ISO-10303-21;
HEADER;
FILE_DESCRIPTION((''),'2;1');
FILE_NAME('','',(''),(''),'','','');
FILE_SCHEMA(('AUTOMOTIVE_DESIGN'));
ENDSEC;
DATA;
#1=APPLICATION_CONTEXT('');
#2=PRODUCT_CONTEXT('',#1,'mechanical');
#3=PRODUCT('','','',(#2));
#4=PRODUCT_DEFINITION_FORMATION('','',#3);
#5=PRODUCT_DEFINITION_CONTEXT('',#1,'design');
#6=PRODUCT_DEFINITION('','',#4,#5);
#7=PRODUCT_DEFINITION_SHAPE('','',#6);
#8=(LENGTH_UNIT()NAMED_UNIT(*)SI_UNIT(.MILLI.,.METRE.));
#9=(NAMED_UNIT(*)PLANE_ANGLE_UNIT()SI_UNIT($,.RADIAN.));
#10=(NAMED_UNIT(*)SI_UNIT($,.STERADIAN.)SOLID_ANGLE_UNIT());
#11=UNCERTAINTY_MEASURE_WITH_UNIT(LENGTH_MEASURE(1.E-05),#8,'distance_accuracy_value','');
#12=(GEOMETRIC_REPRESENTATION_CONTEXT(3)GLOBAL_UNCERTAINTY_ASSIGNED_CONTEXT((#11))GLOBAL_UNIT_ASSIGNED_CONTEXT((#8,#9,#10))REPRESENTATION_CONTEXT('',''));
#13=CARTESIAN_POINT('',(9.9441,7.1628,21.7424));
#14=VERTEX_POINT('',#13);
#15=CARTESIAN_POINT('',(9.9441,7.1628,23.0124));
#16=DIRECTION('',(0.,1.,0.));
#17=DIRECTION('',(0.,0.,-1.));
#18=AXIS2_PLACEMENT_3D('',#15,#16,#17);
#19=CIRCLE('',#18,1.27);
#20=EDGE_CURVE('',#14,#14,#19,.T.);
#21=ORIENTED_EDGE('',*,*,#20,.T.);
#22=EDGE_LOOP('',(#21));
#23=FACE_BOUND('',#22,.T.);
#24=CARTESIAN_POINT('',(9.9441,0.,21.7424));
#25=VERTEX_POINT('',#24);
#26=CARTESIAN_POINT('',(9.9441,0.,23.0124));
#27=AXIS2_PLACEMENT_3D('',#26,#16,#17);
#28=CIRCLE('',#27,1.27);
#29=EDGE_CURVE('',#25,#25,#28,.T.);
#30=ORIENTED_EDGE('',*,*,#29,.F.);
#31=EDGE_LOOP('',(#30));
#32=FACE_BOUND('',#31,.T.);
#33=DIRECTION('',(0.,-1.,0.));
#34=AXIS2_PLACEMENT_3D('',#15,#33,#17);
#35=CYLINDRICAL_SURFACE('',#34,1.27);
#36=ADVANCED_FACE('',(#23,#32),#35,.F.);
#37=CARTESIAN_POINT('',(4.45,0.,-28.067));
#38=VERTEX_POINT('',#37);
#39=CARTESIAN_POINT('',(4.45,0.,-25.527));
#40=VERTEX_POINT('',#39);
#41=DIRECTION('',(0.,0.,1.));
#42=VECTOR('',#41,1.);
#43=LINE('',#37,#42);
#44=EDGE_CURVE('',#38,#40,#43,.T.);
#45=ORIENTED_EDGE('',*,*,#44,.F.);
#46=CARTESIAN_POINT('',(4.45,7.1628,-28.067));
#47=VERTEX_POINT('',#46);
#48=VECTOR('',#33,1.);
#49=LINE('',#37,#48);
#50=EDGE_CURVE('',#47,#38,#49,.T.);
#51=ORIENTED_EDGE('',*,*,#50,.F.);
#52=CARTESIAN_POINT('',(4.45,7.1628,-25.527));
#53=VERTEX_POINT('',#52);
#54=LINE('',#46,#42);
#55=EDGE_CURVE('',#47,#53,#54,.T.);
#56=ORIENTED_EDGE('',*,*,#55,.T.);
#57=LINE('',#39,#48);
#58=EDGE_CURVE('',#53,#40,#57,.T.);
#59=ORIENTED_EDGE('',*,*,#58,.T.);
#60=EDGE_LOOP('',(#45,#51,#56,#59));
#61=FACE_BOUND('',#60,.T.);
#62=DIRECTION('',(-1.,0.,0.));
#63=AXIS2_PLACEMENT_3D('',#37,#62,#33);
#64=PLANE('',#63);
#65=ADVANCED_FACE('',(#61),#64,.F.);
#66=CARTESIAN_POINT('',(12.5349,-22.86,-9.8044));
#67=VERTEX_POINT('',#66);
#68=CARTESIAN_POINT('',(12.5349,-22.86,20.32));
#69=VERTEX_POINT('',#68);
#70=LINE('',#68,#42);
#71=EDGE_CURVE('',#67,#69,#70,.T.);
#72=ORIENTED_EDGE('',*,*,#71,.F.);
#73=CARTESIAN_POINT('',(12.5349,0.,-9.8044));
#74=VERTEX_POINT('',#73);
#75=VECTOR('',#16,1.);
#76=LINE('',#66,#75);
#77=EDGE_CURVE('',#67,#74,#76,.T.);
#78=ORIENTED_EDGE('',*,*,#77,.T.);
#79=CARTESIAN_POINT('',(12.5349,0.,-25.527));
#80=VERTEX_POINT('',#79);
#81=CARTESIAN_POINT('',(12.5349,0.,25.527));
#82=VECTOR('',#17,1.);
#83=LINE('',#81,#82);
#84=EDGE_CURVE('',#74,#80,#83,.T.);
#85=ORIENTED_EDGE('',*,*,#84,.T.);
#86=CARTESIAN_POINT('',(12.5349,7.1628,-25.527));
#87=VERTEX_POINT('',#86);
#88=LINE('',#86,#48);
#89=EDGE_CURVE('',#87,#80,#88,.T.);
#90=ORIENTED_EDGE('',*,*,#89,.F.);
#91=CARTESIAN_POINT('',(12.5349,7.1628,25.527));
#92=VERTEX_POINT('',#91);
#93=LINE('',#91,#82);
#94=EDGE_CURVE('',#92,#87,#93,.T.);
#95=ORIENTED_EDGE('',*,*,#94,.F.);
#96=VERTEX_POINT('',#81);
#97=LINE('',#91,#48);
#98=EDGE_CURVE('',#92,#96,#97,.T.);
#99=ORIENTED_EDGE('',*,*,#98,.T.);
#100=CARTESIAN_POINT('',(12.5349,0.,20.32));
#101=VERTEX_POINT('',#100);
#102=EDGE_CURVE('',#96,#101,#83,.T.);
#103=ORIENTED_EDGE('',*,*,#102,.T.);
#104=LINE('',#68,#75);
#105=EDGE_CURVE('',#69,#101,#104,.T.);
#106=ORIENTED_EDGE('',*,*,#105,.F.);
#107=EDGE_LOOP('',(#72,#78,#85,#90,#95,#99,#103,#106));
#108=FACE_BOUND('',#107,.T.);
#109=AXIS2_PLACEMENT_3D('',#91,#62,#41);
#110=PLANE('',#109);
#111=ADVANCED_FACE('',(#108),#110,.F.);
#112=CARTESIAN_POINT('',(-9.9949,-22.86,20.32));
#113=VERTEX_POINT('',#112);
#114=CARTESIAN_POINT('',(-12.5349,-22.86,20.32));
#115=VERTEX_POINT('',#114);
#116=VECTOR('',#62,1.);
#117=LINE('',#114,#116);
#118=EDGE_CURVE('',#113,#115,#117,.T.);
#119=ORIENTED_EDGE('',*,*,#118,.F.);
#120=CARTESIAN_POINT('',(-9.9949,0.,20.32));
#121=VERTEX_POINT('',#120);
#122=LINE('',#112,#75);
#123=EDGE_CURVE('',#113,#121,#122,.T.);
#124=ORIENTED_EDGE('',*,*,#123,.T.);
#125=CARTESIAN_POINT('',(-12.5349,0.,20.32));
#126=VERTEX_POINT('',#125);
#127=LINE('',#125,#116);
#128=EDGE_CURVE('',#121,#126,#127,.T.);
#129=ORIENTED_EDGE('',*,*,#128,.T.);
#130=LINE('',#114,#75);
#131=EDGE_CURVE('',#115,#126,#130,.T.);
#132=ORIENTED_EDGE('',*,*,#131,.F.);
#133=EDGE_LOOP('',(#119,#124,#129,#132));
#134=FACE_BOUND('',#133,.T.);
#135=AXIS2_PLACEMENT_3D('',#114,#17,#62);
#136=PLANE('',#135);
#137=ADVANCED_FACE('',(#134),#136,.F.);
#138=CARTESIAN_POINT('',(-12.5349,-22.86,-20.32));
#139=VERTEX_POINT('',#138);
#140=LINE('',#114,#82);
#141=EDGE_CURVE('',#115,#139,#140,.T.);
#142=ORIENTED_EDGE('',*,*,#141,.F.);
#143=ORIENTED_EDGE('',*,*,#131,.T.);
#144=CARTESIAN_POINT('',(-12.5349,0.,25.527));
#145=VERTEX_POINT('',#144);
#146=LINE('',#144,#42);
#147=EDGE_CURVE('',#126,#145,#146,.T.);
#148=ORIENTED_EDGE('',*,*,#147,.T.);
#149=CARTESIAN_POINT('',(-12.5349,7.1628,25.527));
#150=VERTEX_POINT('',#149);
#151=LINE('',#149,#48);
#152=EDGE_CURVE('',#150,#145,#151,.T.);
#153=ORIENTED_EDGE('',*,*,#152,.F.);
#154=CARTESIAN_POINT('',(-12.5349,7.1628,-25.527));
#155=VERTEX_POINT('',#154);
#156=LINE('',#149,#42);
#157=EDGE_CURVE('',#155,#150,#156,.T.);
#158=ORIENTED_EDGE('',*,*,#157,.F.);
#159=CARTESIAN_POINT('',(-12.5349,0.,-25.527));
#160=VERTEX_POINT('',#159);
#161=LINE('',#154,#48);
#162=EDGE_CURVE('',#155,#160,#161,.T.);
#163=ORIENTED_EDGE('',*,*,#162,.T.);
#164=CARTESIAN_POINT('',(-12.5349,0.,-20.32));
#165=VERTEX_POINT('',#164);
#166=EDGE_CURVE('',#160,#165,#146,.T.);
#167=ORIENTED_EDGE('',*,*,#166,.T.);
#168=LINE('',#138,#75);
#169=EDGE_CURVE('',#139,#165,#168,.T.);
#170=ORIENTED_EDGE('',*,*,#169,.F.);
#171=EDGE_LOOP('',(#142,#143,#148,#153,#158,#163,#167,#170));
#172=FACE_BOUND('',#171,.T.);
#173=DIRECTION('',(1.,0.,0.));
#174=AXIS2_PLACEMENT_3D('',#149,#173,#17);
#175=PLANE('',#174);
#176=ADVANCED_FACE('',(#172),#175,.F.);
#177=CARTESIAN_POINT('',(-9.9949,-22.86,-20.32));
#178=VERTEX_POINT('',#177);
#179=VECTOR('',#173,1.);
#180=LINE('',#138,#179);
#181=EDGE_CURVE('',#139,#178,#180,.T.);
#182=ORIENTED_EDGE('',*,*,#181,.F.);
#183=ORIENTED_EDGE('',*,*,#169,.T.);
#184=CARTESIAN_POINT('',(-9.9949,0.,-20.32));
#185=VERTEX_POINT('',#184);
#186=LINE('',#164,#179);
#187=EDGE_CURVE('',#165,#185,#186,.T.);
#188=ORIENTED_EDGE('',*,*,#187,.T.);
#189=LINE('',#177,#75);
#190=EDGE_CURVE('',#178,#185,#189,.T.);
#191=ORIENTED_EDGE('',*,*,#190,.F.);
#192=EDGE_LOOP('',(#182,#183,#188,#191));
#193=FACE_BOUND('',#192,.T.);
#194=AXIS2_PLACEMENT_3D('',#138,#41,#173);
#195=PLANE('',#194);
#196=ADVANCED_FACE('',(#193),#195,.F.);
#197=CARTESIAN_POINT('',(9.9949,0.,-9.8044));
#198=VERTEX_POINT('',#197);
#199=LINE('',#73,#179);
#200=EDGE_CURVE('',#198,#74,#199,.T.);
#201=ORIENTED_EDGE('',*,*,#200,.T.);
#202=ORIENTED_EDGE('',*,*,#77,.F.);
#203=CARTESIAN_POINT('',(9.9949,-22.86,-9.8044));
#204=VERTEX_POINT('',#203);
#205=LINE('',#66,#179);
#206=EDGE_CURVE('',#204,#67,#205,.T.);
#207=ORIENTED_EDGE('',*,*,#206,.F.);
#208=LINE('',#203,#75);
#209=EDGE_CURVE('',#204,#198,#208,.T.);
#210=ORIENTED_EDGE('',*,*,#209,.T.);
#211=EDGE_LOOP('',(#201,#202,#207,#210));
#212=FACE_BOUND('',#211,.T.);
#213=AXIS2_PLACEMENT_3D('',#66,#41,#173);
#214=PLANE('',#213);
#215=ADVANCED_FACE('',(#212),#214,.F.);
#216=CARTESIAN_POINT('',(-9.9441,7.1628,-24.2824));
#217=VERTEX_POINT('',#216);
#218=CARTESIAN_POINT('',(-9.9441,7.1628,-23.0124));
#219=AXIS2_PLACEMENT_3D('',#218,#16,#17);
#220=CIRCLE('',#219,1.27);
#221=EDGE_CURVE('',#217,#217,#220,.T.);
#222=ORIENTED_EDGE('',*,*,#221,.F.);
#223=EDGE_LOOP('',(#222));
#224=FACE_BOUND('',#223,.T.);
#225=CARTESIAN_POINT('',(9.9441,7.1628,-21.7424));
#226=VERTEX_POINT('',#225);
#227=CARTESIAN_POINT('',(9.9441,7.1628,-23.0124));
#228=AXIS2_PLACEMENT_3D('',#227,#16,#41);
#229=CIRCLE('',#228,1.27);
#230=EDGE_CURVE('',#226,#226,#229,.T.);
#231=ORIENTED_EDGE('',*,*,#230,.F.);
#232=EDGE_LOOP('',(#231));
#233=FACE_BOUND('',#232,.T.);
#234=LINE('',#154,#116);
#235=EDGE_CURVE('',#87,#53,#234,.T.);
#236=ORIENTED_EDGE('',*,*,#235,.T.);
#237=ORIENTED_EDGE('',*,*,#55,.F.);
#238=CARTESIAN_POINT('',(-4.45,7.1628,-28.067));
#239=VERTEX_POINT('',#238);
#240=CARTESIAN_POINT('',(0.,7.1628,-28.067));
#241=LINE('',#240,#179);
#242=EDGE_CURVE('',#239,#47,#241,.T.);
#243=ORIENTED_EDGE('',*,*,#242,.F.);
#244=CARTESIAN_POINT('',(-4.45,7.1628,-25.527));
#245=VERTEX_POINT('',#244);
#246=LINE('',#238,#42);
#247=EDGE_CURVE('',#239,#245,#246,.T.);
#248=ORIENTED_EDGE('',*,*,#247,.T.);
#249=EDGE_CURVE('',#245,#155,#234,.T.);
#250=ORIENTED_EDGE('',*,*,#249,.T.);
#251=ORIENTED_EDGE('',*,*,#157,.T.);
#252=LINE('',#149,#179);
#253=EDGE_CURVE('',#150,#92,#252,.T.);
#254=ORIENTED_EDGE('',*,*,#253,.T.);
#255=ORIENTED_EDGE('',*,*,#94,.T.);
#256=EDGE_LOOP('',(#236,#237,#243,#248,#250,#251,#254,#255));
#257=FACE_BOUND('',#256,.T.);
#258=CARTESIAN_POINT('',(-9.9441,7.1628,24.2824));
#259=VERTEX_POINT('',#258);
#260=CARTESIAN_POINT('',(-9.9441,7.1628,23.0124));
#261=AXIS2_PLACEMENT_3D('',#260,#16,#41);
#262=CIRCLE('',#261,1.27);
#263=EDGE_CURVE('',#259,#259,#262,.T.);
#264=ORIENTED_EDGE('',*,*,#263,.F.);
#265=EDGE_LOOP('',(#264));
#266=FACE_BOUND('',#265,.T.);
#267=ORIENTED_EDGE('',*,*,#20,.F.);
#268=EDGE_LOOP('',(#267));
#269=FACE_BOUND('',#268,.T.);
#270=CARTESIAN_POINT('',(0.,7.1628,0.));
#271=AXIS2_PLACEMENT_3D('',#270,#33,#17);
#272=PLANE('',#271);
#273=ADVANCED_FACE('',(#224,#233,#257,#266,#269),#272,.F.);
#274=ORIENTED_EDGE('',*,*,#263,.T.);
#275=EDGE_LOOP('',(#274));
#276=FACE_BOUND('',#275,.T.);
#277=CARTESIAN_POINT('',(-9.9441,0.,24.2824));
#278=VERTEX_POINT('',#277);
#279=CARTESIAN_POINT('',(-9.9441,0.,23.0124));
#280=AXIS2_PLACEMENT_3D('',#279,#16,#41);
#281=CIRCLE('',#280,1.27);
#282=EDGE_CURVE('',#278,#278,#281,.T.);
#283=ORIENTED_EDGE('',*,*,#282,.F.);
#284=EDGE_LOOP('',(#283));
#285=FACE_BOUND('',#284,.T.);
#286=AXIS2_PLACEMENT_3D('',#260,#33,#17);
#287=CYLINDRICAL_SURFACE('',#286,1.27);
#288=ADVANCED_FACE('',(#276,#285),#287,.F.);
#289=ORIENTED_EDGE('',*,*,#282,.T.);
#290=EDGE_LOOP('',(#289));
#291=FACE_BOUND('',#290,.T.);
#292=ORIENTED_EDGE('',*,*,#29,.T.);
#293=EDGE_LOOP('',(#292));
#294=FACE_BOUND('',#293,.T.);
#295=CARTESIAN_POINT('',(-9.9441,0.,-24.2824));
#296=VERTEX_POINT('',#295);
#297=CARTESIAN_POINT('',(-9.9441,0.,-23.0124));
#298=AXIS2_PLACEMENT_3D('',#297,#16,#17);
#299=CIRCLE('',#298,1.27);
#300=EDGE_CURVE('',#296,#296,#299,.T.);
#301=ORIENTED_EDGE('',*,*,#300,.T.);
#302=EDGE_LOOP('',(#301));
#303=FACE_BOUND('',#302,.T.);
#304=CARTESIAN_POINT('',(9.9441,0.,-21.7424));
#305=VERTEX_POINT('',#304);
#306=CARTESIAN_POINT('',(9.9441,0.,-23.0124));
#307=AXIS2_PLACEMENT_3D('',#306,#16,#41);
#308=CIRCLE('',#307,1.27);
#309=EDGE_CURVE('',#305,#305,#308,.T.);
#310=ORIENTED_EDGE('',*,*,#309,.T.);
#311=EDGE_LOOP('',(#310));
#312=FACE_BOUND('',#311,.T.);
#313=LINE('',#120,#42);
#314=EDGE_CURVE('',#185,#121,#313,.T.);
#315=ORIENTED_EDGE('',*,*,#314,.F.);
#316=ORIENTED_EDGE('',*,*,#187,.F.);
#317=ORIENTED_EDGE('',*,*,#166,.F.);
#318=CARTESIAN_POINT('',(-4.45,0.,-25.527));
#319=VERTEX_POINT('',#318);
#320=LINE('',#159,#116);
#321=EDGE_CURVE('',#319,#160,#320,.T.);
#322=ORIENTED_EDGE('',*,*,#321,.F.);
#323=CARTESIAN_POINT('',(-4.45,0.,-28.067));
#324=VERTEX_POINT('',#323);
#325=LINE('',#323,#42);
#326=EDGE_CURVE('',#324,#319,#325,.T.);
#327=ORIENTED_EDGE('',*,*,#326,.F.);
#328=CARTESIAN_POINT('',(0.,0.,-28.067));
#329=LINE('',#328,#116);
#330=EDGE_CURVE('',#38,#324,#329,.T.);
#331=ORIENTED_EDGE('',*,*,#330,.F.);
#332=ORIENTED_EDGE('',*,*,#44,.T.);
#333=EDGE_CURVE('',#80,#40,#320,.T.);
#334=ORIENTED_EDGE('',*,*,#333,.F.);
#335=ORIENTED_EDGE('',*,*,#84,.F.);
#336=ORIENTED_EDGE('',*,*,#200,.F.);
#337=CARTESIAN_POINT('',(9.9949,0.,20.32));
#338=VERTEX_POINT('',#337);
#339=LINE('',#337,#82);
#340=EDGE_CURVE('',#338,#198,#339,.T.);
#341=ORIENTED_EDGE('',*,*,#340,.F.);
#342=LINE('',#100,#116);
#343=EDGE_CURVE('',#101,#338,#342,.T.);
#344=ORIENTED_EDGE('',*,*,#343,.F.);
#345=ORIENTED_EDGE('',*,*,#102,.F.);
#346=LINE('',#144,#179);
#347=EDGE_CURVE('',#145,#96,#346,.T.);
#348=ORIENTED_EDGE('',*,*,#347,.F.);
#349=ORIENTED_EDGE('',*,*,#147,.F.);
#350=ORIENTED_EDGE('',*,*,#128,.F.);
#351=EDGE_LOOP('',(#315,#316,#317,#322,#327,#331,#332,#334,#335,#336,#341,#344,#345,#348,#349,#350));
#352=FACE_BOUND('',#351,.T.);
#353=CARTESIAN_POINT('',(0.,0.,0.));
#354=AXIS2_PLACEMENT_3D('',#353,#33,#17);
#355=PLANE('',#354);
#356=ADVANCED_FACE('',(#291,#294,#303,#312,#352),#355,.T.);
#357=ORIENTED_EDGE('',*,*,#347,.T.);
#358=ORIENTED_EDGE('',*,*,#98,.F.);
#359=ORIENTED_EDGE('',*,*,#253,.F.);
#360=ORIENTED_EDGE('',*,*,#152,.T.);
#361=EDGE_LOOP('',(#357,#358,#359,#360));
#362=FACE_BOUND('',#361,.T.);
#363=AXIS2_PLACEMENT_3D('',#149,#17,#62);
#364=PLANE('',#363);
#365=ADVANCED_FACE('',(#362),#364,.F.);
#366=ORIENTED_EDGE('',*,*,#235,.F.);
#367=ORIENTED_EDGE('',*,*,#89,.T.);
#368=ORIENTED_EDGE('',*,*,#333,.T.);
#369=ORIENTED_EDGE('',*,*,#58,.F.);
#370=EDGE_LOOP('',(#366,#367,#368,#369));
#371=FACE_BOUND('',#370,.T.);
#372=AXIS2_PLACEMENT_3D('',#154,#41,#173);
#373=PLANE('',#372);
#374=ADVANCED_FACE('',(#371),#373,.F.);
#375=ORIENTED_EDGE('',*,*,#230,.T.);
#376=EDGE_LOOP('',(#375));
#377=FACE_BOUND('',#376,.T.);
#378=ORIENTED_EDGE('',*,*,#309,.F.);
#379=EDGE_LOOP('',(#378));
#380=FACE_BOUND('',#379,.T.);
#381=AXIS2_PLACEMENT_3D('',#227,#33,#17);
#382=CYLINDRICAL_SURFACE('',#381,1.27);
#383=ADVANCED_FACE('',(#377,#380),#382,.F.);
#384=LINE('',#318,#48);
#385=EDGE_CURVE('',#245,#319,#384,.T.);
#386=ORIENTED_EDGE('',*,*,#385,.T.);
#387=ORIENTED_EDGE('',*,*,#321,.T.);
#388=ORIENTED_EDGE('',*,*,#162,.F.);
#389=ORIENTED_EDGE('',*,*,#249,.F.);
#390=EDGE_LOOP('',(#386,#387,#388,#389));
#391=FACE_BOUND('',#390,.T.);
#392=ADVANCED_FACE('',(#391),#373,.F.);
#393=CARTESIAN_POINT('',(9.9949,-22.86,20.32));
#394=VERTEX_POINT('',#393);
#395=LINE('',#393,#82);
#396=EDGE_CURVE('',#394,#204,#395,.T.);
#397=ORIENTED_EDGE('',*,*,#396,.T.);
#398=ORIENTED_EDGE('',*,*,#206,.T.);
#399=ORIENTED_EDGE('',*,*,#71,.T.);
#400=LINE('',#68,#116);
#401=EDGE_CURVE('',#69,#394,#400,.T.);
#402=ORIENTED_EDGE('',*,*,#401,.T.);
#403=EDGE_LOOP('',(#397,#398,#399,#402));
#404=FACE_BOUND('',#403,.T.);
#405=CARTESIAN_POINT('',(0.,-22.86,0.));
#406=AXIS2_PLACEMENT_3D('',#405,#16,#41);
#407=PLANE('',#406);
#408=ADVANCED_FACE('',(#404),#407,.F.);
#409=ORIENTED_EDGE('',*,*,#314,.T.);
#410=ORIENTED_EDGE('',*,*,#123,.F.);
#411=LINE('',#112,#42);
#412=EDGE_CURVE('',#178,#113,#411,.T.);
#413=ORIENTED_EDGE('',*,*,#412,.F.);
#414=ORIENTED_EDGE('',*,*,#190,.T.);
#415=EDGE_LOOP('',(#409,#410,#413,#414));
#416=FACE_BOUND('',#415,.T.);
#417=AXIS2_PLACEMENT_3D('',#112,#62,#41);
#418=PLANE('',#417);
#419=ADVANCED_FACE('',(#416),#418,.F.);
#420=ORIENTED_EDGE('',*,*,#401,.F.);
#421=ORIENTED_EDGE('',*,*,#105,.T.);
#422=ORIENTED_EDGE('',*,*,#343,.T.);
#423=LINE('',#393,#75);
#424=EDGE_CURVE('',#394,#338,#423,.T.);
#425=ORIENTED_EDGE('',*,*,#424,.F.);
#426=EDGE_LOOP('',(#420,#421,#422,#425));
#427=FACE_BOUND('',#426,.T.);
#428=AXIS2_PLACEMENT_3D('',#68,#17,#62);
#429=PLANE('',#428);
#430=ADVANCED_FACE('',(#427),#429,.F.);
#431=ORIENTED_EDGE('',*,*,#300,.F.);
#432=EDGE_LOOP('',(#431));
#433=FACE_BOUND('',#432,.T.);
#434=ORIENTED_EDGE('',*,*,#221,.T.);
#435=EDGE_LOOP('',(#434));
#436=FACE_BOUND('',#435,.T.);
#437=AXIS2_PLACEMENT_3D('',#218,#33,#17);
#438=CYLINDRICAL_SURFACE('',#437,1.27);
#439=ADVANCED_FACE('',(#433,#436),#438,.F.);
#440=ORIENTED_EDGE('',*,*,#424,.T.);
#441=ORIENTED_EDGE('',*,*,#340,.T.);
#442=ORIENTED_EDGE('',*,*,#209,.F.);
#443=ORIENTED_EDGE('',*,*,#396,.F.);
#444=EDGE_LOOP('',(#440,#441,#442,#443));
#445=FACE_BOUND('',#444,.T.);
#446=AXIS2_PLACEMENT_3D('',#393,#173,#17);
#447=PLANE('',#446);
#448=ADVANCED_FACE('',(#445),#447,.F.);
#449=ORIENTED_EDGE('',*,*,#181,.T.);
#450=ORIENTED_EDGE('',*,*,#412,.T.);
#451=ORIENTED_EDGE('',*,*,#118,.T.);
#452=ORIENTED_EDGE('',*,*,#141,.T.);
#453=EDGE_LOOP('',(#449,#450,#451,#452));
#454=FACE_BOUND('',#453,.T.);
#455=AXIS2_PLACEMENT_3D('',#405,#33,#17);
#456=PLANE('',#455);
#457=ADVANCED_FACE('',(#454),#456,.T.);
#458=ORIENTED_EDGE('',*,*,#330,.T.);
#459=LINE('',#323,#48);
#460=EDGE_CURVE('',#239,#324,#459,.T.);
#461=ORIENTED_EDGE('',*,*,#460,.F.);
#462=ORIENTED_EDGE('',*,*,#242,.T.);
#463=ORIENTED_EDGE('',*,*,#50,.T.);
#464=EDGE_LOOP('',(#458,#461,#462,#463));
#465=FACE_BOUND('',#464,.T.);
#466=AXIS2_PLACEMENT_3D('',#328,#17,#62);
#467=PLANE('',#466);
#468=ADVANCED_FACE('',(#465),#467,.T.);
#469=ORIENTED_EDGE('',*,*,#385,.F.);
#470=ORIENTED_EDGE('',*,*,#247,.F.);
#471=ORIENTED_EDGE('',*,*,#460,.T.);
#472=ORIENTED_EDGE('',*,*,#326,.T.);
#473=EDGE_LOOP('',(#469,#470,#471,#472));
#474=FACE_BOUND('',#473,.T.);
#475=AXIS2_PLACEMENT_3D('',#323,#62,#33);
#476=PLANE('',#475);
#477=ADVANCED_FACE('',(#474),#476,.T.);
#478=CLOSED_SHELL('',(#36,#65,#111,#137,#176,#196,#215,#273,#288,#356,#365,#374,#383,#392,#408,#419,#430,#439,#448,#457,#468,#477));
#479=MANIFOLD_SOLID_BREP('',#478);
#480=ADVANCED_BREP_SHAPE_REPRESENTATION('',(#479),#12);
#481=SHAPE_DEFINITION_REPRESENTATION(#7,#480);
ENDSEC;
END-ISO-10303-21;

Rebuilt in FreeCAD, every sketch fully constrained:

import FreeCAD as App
import Part
import Sketcher

V = App.Vector
Q = App.Units.Quantity


def add_polygon(sketch, points):
    """Adds a closed chain of lines whose ends are joined by coincident constraints."""
    first, n = sketch.GeometryCount, len(points)
    for a, b in zip(points, points[1:] + points[:1]):
        sketch.addGeometry(Part.LineSegment(App.Vector(*a, 0), App.Vector(*b, 0)), False)
    for i in range(n):
        sketch.addConstraint(Sketcher.Constraint("Coincident", first + i, 2, first + (i + 1) % n, 1))

doc = App.newDocument("Part")
body = doc.addObject("PartDesign::Body", "Body")

sketch1 = body.newObject("Sketcher::SketchObject", "Sketch")
sketch1.AttachmentSupport = (doc.getObject("XZ_Plane"), [""])
sketch1.MapMode = "FlatFace"
add_polygon(sketch1, [(-12.5, -25.5), (-12.5, 25.5), (12.5, 25.5), (12.5, -25.5)])
sketch1.addGeometry(Part.Circle(V(-9.9, 23, 0), V(0, 0, 1), 1.3), False)
sketch1.addGeometry(Part.Circle(V(9.9, 23, 0), V(0, 0, 1), 1.3), False)
sketch1.addGeometry(Part.Circle(V(-9.9, -23, 0), V(0, 0, 1), 1.3), False)
sketch1.addGeometry(Part.Circle(V(9.9, -23, 0), V(0, 0, 1), 1.3), False)
sketch1.addConstraint([
    Sketcher.Constraint("Vertical", 0),
    Sketcher.Constraint("Horizontal", 1),
    Sketcher.Constraint("Vertical", 2),
    Sketcher.Constraint("Horizontal", 3),
    Sketcher.Constraint("Equal", 4, 5),
    Sketcher.Constraint("Equal", 5, 6),
    Sketcher.Constraint("Equal", 6, 7),
    Sketcher.Constraint("Symmetric", 5, 3, 6, 3, -1, 1),
    Sketcher.Constraint("Symmetric", 4, 3, 7, 3, -1, 1),
    Sketcher.Constraint("Symmetric", 0, 2, 2, 2, -1, 1),
    Sketcher.Constraint("Symmetric", 4, 3, 5, 3, -2),
    Sketcher.Constraint("Diameter", 4, Q("0.1 in")),
    Sketcher.Constraint("DistanceY", 0, 1, 0, 2, Q("2.01 in")),
    Sketcher.Constraint("DistanceX", 1, 1, 1, 2, Q("0.987 in")),
    Sketcher.Constraint("DistanceY", -1, 1, 4, 3, Q("0.906 in")),
    Sketcher.Constraint("DistanceX", 4, 3, 5, 3, Q("0.783 in")),
])
pad1 = body.newObject("PartDesign::Pad", "Pad")
pad1.Profile = sketch1
pad1.Length = Q("0.282 in")
pad1.Reversed = True

sketch2 = body.newObject("Sketcher::SketchObject", "Sketch001")
sketch2.AttachmentSupport = (doc.getObject("XZ_Plane"), [""])
sketch2.MapMode = "FlatFace"
add_polygon(sketch2, [(-12.5, 20.3), (-12.5, -20.3), (-10, -20.3), (-10, 20.3)])
add_polygon(sketch2, [(10, 20.3), (10, -9.8), (12.5, -9.8), (12.5, 20.3)])
sketch2.addConstraint([
    Sketcher.Constraint("Vertical", 0),
    Sketcher.Constraint("Horizontal", 1),
    Sketcher.Constraint("Vertical", 2),
    Sketcher.Constraint("Horizontal", 3),
    Sketcher.Constraint("Vertical", 4),
    Sketcher.Constraint("Horizontal", 5),
    Sketcher.Constraint("Vertical", 6),
    Sketcher.Constraint("Horizontal", 7),
    Sketcher.Constraint("Symmetric", 0, 2, 6, 2, -1, 1),
    Sketcher.Constraint("Symmetric", 2, 2, 7, 2, -2),
    Sketcher.Constraint("DistanceX", 1, 1, 1, 2, Q("0.1 in")),
    Sketcher.Constraint("DistanceY", 0, 2, 0, 1, Q("1.6 in")),
    Sketcher.Constraint("DistanceY", 4, 2, 4, 1, Q("1.186 in")),
    Sketcher.Constraint("DistanceX", 1, 2, 4, 2, Q("0.787 in")),
])
pad2 = body.newObject("PartDesign::Pad", "Pad001")
pad2.Profile = sketch2
pad2.Length = Q("0.9 in")

sketch3 = body.newObject("Sketcher::SketchObject", "Sketch002")
sketch3.AttachmentSupport = (doc.getObject("XY_Plane"), [""])
sketch3.MapMode = "FlatFace"
sketch3.AttachmentOffset = App.Placement(V(0, 0, -1.005 * 25.4), App.Rotation())
add_polygon(sketch3, [(4, 7), (4, 0), (-4, 0), (-4, 7)])
sketch3.addConstraint([
    Sketcher.Constraint("Vertical", 0),
    Sketcher.Constraint("Horizontal", 1),
    Sketcher.Constraint("Vertical", 2),
    Sketcher.Constraint("Horizontal", 3),
    Sketcher.Constraint("Symmetric", 0, 2, 1, 2, -1, 1),
    Sketcher.Constraint("DistanceY", 0, 2, 0, 1, Q("0.282 in")),
    Sketcher.Constraint("DistanceX", 1, 2, 1, 1, 8.9),
])
pad3 = body.newObject("PartDesign::Pad", "Pad002")
pad3.Profile = sketch3
pad3.Length = Q("0.1 in")
pad3.Reversed = True

doc.recompute()
